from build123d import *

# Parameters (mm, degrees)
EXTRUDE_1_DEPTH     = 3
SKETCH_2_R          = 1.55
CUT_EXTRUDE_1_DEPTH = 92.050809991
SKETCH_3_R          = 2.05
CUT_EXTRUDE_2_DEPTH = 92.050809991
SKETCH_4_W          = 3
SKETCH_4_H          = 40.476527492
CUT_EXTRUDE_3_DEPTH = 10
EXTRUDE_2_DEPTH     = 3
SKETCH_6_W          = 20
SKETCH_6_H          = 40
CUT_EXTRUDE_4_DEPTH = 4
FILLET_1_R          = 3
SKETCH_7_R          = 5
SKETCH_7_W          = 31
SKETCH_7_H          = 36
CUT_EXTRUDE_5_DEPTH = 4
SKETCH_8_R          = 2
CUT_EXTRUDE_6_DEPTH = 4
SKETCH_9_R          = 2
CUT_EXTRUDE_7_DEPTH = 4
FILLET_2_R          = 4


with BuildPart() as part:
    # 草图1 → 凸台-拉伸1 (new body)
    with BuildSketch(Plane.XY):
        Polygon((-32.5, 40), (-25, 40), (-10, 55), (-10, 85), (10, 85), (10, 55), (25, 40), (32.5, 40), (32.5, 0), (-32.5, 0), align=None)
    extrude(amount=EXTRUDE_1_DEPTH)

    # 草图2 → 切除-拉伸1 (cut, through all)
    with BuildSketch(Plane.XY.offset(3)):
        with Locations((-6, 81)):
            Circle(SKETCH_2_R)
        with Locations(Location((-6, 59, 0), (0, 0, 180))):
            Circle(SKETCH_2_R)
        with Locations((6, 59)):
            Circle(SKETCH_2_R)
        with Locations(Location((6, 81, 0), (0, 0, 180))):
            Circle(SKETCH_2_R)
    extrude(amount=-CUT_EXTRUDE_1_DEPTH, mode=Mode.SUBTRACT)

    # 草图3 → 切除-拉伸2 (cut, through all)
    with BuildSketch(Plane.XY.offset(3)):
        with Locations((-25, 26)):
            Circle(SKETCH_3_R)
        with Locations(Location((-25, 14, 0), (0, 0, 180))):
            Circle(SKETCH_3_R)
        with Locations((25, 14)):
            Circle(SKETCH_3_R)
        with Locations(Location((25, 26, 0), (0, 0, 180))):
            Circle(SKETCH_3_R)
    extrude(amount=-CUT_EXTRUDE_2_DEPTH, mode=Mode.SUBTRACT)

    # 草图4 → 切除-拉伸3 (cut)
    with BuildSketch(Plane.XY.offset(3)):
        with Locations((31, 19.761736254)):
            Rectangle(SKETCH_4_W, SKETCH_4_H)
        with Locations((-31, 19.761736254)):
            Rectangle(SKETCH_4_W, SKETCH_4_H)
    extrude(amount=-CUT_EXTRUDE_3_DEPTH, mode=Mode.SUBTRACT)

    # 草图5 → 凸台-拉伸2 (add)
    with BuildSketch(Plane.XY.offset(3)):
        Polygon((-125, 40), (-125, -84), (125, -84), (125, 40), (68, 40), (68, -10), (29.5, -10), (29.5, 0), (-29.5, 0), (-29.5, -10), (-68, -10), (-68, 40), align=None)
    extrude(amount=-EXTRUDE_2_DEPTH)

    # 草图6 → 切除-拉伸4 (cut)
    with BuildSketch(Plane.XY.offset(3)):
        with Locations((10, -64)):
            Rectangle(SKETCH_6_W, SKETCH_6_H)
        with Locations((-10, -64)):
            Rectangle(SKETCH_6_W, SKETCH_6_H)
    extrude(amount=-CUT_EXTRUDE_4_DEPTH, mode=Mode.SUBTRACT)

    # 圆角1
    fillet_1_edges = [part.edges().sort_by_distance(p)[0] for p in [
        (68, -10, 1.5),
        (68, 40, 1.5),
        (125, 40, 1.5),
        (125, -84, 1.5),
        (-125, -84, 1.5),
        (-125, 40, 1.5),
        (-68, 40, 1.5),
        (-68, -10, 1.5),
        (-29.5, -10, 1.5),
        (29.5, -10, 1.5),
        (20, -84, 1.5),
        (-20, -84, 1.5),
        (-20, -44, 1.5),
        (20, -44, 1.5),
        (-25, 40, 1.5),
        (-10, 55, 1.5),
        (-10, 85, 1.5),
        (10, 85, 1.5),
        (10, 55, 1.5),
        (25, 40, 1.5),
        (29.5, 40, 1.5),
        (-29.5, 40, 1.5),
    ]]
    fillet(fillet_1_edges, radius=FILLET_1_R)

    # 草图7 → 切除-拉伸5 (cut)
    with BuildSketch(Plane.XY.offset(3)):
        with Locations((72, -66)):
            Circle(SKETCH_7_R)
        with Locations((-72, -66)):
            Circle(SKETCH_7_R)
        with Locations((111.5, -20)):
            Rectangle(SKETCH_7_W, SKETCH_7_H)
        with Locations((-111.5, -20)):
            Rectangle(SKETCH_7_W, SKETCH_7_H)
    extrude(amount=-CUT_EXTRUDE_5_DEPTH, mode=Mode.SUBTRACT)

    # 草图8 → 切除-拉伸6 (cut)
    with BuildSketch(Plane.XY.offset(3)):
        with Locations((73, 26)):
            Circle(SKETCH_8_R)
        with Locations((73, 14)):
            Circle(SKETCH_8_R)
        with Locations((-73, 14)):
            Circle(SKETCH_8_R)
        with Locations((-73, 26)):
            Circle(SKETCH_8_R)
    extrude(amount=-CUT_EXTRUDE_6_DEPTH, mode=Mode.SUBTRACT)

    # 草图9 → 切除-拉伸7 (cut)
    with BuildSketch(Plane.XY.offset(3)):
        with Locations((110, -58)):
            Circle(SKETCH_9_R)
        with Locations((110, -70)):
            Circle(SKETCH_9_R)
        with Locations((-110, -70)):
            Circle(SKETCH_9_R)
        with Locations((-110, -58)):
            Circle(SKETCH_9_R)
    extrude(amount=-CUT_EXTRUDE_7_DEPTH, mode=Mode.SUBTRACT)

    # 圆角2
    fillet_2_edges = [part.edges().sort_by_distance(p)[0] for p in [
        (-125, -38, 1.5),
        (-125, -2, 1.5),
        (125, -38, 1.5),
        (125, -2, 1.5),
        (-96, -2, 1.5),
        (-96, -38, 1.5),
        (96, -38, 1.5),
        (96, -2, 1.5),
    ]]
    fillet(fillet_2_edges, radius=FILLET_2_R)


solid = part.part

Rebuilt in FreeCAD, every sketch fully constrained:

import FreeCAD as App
import Part
import Sketcher

V = App.Vector
Q = App.Units.Quantity


def edges_at(feature, points):
    """Names of the edges that pass closest to the given points."""
    edges = feature.Shape.Edges
    near = lambda p: min(range(len(edges)), key=lambda i: edges[i].distToShape(Part.Vertex(*p))[0])
    return sorted({f"Edge{near(p) + 1}" for p in points})

doc = App.newDocument("Part")
body = doc.addObject("PartDesign::Body", "Body")

sketch1 = body.newObject("Sketcher::SketchObject", "Sketch")
sketch1.AttachmentSupport = (doc.getObject("XY_Plane"), [""])
sketch1.MapMode = "FlatFace"
sketch1.addGeometry([
    Part.LineSegment(V(-25, 40, 0), V(-32, 40, 0)),
    Part.LineSegment(V(-32, 40, 0), V(-32, 0, 0)),
    Part.LineSegment(V(-32, 0, 0), V(32, 0, 0)),
    Part.LineSegment(V(32, 0, 0), V(32, 40, 0)),
    Part.LineSegment(V(32, 40, 0), V(25, 40, 0)),
    Part.LineSegment(V(25, 40, 0), V(10, 55, 0)),
    Part.LineSegment(V(10, 55, 0), V(10, 85, 0)),
    Part.LineSegment(V(10, 85, 0), V(-10, 85, 0)),
    Part.LineSegment(V(-10, 85, 0), V(-10, 55, 0)),
    Part.LineSegment(V(-10, 55, 0), V(-25, 40, 0)),
], False)
sketch1.addConstraint([
    Sketcher.Constraint("Coincident", 0, 2, 1, 1),
    Sketcher.Constraint("Coincident", 1, 2, 2, 1),
    Sketcher.Constraint("Coincident", 2, 2, 3, 1),
    Sketcher.Constraint("Coincident", 3, 2, 4, 1),
    Sketcher.Constraint("Coincident", 4, 2, 5, 1),
    Sketcher.Constraint("Coincident", 5, 2, 6, 1),
    Sketcher.Constraint("Coincident", 6, 2, 7, 1),
    Sketcher.Constraint("Coincident", 7, 2, 8, 1),
    Sketcher.Constraint("Coincident", 8, 2, 9, 1),
    Sketcher.Constraint("Coincident", 9, 2, 0, 1),
    Sketcher.Constraint("Horizontal", 0),
    Sketcher.Constraint("Vertical", 1),
    Sketcher.Constraint("Horizontal", 2),
    Sketcher.Constraint("Vertical", 3),
    Sketcher.Constraint("Horizontal", 4),
    Sketcher.Constraint("Vertical", 6),
    Sketcher.Constraint("Horizontal", 7),
    Sketcher.Constraint("Vertical", 8),
    Sketcher.Constraint("Symmetric", 1, 2, 2, 2, -1, 1),
    Sketcher.Constraint("Symmetric", 5, 2, 8, 2, -2),
    Sketcher.Constraint("Symmetric", 4, 2, 9, 2, -2),
    Sketcher.Constraint("Perpendicular", 5, 9),
    Sketcher.Constraint("DistanceX", 2, 1, 2, 2, Q("65 mm")),
    Sketcher.Constraint("DistanceX", 7, 2, 7, 1, Q("20 mm")),
    Sketcher.Constraint("DistanceY", 1, 2, 1, 1, Q("40 mm")),
    Sketcher.Constraint("DistanceY", 6, 1, 6, 2, Q("30 mm")),
    Sketcher.Constraint("DistanceX", 0, 2, 0, 1, Q("7.5 mm")),
])
pad1 = body.newObject("PartDesign::Pad", "Pad")
pad1.Profile = sketch1
pad1.Length = 3

sketch2 = body.newObject("Sketcher::SketchObject", "Sketch001")
sketch2.AttachmentSupport = (doc.getObject("XY_Plane"), [""])
sketch2.MapMode = "FlatFace"
sketch2.AttachmentOffset = App.Placement(V(0, 0, 3), App.Rotation())
sketch2.addGeometry([
    Part.Circle(V(-6, 81, 0), V(0, 0, 1), 1.6),
    Part.Circle(V(-6, 59, 0), V(0, 0, 1), 1.6),
    Part.Circle(V(6, 59, 0), V(0, 0, 1), 1.6),
    Part.Circle(V(6, 81, 0), V(0, 0, 1), 1.6),
], False)
sketch2.addConstraint([
    Sketcher.Constraint("Equal", 0, 1),
    Sketcher.Constraint("Equal", 1, 2),
    Sketcher.Constraint("Equal", 2, 3),
    Sketcher.Constraint("Symmetric", 1, 3, 2, 3, -2),
    Sketcher.Constraint("Symmetric", 0, 3, 3, 3, -2),
    Sketcher.Constraint("Vertical", 0, 3, 1, 3),
    Sketcher.Constraint("Diameter", 0, Q("3.1 mm")),
    Sketcher.Constraint("DistanceX", 0, 3, -1, 1, Q("6 mm")),
    Sketcher.Constraint("DistanceY", -1, 1, 0, 3, Q("81 mm")),
    Sketcher.Constraint("DistanceY", -1, 1, 1, 3, Q("59 mm")),
])
pocket1 = body.newObject("PartDesign::Pocket", "Pocket")
pocket1.Profile = sketch2
pocket1.Type = "ThroughAll"

sketch3 = body.newObject("Sketcher::SketchObject", "Sketch002")
sketch3.AttachmentSupport = (doc.getObject("XY_Plane"), [""])
sketch3.MapMode = "FlatFace"
sketch3.AttachmentOffset = App.Placement(V(0, 0, 3), App.Rotation())
sketch3.addGeometry([
    Part.Circle(V(-25, 26, 0), V(0, 0, 1), 2),
    Part.Circle(V(-25, 14, 0), V(0, 0, 1), 2),
    Part.Circle(V(25, 14, 0), V(0, 0, 1), 2),
    Part.Circle(V(25, 26, 0), V(0, 0, 1), 2),
], False)
sketch3.addConstraint([
    Sketcher.Constraint("Equal", 0, 1),
    Sketcher.Constraint("Equal", 1, 2),
    Sketcher.Constraint("Equal", 2, 3),
    Sketcher.Constraint("Symmetric", 1, 3, 2, 3, -2),
    Sketcher.Constraint("Symmetric", 0, 3, 3, 3, -2),
    Sketcher.Constraint("Vertical", 0, 3, 1, 3),
    Sketcher.Constraint("Diameter", 0, Q("4.1 mm")),
    Sketcher.Constraint("DistanceX", 0, 3, -1, 1, Q("25 mm")),
    Sketcher.Constraint("DistanceY", -1, 1, 0, 3, Q("26 mm")),
    Sketcher.Constraint("DistanceY", -1, 1, 1, 3, Q("14 mm")),
])
pocket2 = body.newObject("PartDesign::Pocket", "Pocket001")
pocket2.Profile = sketch3
pocket2.Type = "ThroughAll"

sketch4 = body.newObject("Sketcher::SketchObject", "Sketch003")
sketch4.AttachmentSupport = (doc.getObject("XY_Plane"), [""])
sketch4.MapMode = "FlatFace"
sketch4.AttachmentOffset = App.Placement(V(0, 0, 3), App.Rotation())
sketch4.addGeometry([
    Part.LineSegment(V(29.5, 40, 0), V(29.5, -0.5, 0)),
    Part.LineSegment(V(29.5, -0.5, 0), V(32.5, -0.5, 0)),
    Part.LineSegment(V(32.5, -0.5, 0), V(32.5, 40, 0)),
    Part.LineSegment(V(32.5, 40, 0), V(29.5, 40, 0)),
    Part.LineSegment(V(-32.5, 40, 0), V(-32.5, -0.5, 0)),
    Part.LineSegment(V(-32.5, -0.5, 0), V(-29.5, -0.5, 0)),
    Part.LineSegment(V(-29.5, -0.5, 0), V(-29.5, 40, 0)),
    Part.LineSegment(V(-29.5, 40, 0), V(-32.5, 40, 0)),
], False)
sketch4.addConstraint([
    Sketcher.Constraint("Coincident", 0, 2, 1, 1),
    Sketcher.Constraint("Coincident", 1, 2, 2, 1),
    Sketcher.Constraint("Coincident", 2, 2, 3, 1),
    Sketcher.Constraint("Coincident", 3, 2, 0, 1),
    Sketcher.Constraint("Coincident", 4, 2, 5, 1),
    Sketcher.Constraint("Coincident", 5, 2, 6, 1),
    Sketcher.Constraint("Coincident", 6, 2, 7, 1),
    Sketcher.Constraint("Coincident", 7, 2, 4, 1),
    Sketcher.Constraint("Vertical", 0),
    Sketcher.Constraint("Horizontal", 1),
    Sketcher.Constraint("Vertical", 2),
    Sketcher.Constraint("Horizontal", 3),
    Sketcher.Constraint("Vertical", 4),
    Sketcher.Constraint("Horizontal", 5),
    Sketcher.Constraint("Vertical", 6),
    Sketcher.Constraint("Horizontal", 7),
    Sketcher.Constraint("Symmetric", 1, 2, 4, 2, -2),
    Sketcher.Constraint("Symmetric", 3, 2, 6, 2, -2),
    Sketcher.Constraint("DistanceX", 1, 1, 1, 2, Q("3 mm")),
    Sketcher.Constraint("DistanceY", -1, 1, 2, 2, Q("40 mm")),
    Sketcher.Constraint("DistanceX", 4, 2, 0, 2, Q("62 mm")),
    Sketcher.Constraint("DistanceY", 0, 2, 0, 1, Q("40.476527 mm")),
])
pocket3 = body.newObject("PartDesign::Pocket", "Pocket002")
pocket3.Profile = sketch4
pocket3.Length = 10

sketch5 = body.newObject("Sketcher::SketchObject", "Sketch004")
sketch5.AttachmentSupport = (doc.getObject("XY_Plane"), [""])
sketch5.MapMode = "FlatFace"
sketch5.AttachmentOffset = App.Placement(V(0, 0, 3), App.Rotation())
sketch5.addGeometry([
    Part.LineSegment(V(-125, 40, 0), V(-125, -84, 0)),
    Part.LineSegment(V(-125, -84, 0), V(125, -84, 0)),
    Part.LineSegment(V(125, -84, 0), V(125, 40, 0)),
    Part.LineSegment(V(125, 40, 0), V(68, 40, 0)),
    Part.LineSegment(V(68, 40, 0), V(68, -10, 0)),
    Part.LineSegment(V(68, -10, 0), V(30, -10, 0)),
    Part.LineSegment(V(30, -10, 0), V(30, 0, 0)),
    Part.LineSegment(V(30, 0, 0), V(-30, 0, 0)),
    Part.LineSegment(V(-30, 0, 0), V(-30, -10, 0)),
    Part.LineSegment(V(-30, -10, 0), V(-68, -10, 0)),
    Part.LineSegment(V(-68, -10, 0), V(-68, 40, 0)),
    Part.LineSegment(V(-68, 40, 0), V(-125, 40, 0)),
], False)
sketch5.addConstraint([
    Sketcher.Constraint("Coincident", 0, 2, 1, 1),
    Sketcher.Constraint("Coincident", 1, 2, 2, 1),
    Sketcher.Constraint("Coincident", 2, 2, 3, 1),
    Sketcher.Constraint("Coincident", 3, 2, 4, 1),
    Sketcher.Constraint("Coincident", 4, 2, 5, 1),
    Sketcher.Constraint("Coincident", 5, 2, 6, 1),
    Sketcher.Constraint("Coincident", 6, 2, 7, 1),
    Sketcher.Constraint("Coincident", 7, 2, 8, 1),
    Sketcher.Constraint("Coincident", 8, 2, 9, 1),
    Sketcher.Constraint("Coincident", 9, 2, 10, 1),
    Sketcher.Constraint("Coincident", 10, 2, 11, 1),
    Sketcher.Constraint("Coincident", 11, 2, 0, 1),
    Sketcher.Constraint("Vertical", 0),
    Sketcher.Constraint("Horizontal", 1),
    Sketcher.Constraint("Vertical", 2),
    Sketcher.Constraint("Horizontal", 3),
    Sketcher.Constraint("Vertical", 4),
    Sketcher.Constraint("Horizontal", 5),
    Sketcher.Constraint("Vertical", 6),
    Sketcher.Constraint("Horizontal", 7),
    Sketcher.Constraint("Vertical", 8),
    Sketcher.Constraint("Horizontal", 9),
    Sketcher.Constraint("Vertical", 10),
    Sketcher.Constraint("Horizontal", 11),
    Sketcher.Constraint("Symmetric", 6, 2, 7, 2, -1, 1),
    Sketcher.Constraint("Symmetric", 4, 2, 9, 2, -2),
    Sketcher.Constraint("Symmetric", 2, 2, 11, 2, -2),
    Sketcher.Constraint("DistanceX", 1, 1, 1, 2, Q("250 mm")),
    Sketcher.Constraint("DistanceX", 3, 2, 3, 1, Q("57 mm")),
    Sketcher.Constraint("DistanceX", 7, 2, 7, 1, Q("59 mm")),
    Sketcher.Constraint("DistanceY", 0, 2, 0, 1, Q("124 mm")),
    Sketcher.Constraint("DistanceY", 4, 2, 4, 1, Q("50 mm")),
    Sketcher.Constraint("DistanceY", 6, 1, 6, 2, Q("10 mm")),
])
pad2 = body.newObject("PartDesign::Pad", "Pad001")
pad2.Profile = sketch5
pad2.Length = 3
pad2.Reversed = True

sketch6 = body.newObject("Sketcher::SketchObject", "Sketch005")
sketch6.AttachmentSupport = (doc.getObject("XY_Plane"), [""])
sketch6.MapMode = "FlatFace"
sketch6.AttachmentOffset = App.Placement(V(0, 0, 3), App.Rotation())
sketch6.addGeometry([
    Part.LineSegment(V(20, -84, 0), V(20, -44, 0)),
    Part.LineSegment(V(20, -44, 0), V(-20, -44, 0)),
    Part.LineSegment(V(-20, -44, 0), V(-20, -84, 0)),
    Part.LineSegment(V(-20, -84, 0), V(20, -84, 0)),
], False)
sketch6.addConstraint([
    Sketcher.Constraint("Coincident", 0, 2, 1, 1),
    Sketcher.Constraint("Coincident", 1, 2, 2, 1),
    Sketcher.Constraint("Coincident", 2, 2, 3, 1),
    Sketcher.Constraint("Coincident", 3, 2, 0, 1),
    Sketcher.Constraint("Vertical", 0),
    Sketcher.Constraint("Horizontal", 1),
    Sketcher.Constraint("Vertical", 2),
    Sketcher.Constraint("Horizontal", 3),
    Sketcher.Constraint("Equal", 3, 0),
    Sketcher.Constraint("DistanceX", 1, 2, 1, 1, Q("40 mm")),
    Sketcher.Constraint("DistanceX", -1, 1, 0, 2, Q("20 mm")),
    Sketcher.Constraint("DistanceY", 0, 2, -1, 1, Q("44 mm")),
])
pocket4 = body.newObject("PartDesign::Pocket", "Pocket003")
pocket4.Profile = sketch6
pocket4.Length = 4
doc.recompute()

fillet = body.newObject("PartDesign::Fillet", "Fillet")
fillet.Base = (pocket4, edges_at(pocket4, [
    (68, -10, 1.5),
    (68, 40, 1.5),
    (125, 40, 1.5),
    (125, -84, 1.5),
    (-125, -84, 1.5),
    (-125, 40, 1.5),
    (-68, 40, 1.5),
    (-68, -10, 1.5),
    (-29.5, -10, 1.5),
    (29.5, -10, 1.5),
    (20, -84, 1.5),
    (-20, -84, 1.5),
    (-20, -44, 1.5),
    (20, -44, 1.5),
    (-25, 40, 1.5),
    (-10, 55, 1.5),
    (-10, 85, 1.5),
    (10, 85, 1.5),
    (10, 55, 1.5),
    (25, 40, 1.5),
    (29.5, 40, 1.5),
    (-29.5, 40, 1.5),
]))
fillet.Radius = 3

sketch7 = body.newObject("Sketcher::SketchObject", "Sketch006")
sketch7.AttachmentSupport = (doc.getObject("XY_Plane"), [""])
sketch7.MapMode = "FlatFace"
sketch7.AttachmentOffset = App.Placement(V(0, 0, 3), App.Rotation())
sketch7.addGeometry([
    Part.Circle(V(72, -66, 0), V(0, 0, 1), 5),
    Part.Circle(V(-72, -66, 0), V(0, 0, 1), 5),
    Part.LineSegment(V(96, -2, 0), V(96, -38, 0)),
    Part.LineSegment(V(96, -38, 0), V(127, -38, 0)),
    Part.LineSegment(V(127, -38, 0), V(127, -2, 0)),
    Part.LineSegment(V(127, -2, 0), V(96, -2, 0)),
    Part.LineSegment(V(-127, -2, 0), V(-127, -38, 0)),
    Part.LineSegment(V(-127, -38, 0), V(-96, -38, 0)),
    Part.LineSegment(V(-96, -38, 0), V(-96, -2, 0)),
    Part.LineSegment(V(-96, -2, 0), V(-127, -2, 0)),
], False)
sketch7.addConstraint([
    Sketcher.Constraint("Coincident", 2, 2, 3, 1),
    Sketcher.Constraint("Coincident", 3, 2, 4, 1),
    Sketcher.Constraint("Coincident", 4, 2, 5, 1),
    Sketcher.Constraint("Coincident", 5, 2, 2, 1),
    Sketcher.Constraint("Coincident", 6, 2, 7, 1),
    Sketcher.Constraint("Coincident", 7, 2, 8, 1),
    Sketcher.Constraint("Coincident", 8, 2, 9, 1),
    Sketcher.Constraint("Coincident", 9, 2, 6, 1),
    Sketcher.Constraint("Vertical", 2),
    Sketcher.Constraint("Horizontal", 3),
    Sketcher.Constraint("Vertical", 4),
    Sketcher.Constraint("Horizontal", 5),
    Sketcher.Constraint("Vertical", 6),
    Sketcher.Constraint("Horizontal", 7),
    Sketcher.Constraint("Vertical", 8),
    Sketcher.Constraint("Horizontal", 9),
    Sketcher.Constraint("Equal", 0, 1),
    Sketcher.Constraint("Symmetric", 0, 3, 1, 3, -2),
    Sketcher.Constraint("Symmetric", 3, 2, 6, 2, -2),
    Sketcher.Constraint("Symmetric", 5, 2, 8, 2, -2),
    Sketcher.Constraint("Diameter", 0, Q("10 mm")),
    Sketcher.Constraint("DistanceX", 3, 1, 3, 2, Q("31 mm")),
    Sketcher.Constraint("DistanceY", 2, 2, 2, 1, Q("36 mm")),
    Sketcher.Constraint("DistanceX", -1, 1, 0, 3, Q("72 mm")),
    Sketcher.Constraint("DistanceY", 0, 3, -1, 1, Q("66 mm")),
    Sketcher.Constraint("DistanceX", -1, 1, 2, 2, Q("96 mm")),
    Sketcher.Constraint("DistanceY", 2, 2, -1, 1, Q("38 mm")),
])
pocket5 = body.newObject("PartDesign::Pocket", "Pocket004")
pocket5.Profile = sketch7
pocket5.Length = 4

sketch8 = body.newObject("Sketcher::SketchObject", "Sketch007")
sketch8.AttachmentSupport = (doc.getObject("XY_Plane"), [""])
sketch8.MapMode = "FlatFace"
sketch8.AttachmentOffset = App.Placement(V(0, 0, 3), App.Rotation())
sketch8.addGeometry([
    Part.Circle(V(73, 26, 0), V(0, 0, 1), 2),
    Part.Circle(V(73, 14, 0), V(0, 0, 1), 2),
    Part.Circle(V(-73, 14, 0), V(0, 0, 1), 2),
    Part.Circle(V(-73, 26, 0), V(0, 0, 1), 2),
], False)
sketch8.addConstraint([
    Sketcher.Constraint("Equal", 0, 1),
    Sketcher.Constraint("Equal", 1, 2),
    Sketcher.Constraint("Equal", 2, 3),
    Sketcher.Constraint("Symmetric", 1, 3, 2, 3, -2),
    Sketcher.Constraint("Symmetric", 0, 3, 3, 3, -2),
    Sketcher.Constraint("Vertical", 0, 3, 1, 3),
    Sketcher.Constraint("Diameter", 0, Q("4 mm")),
    Sketcher.Constraint("DistanceX", -1, 1, 0, 3, Q("73 mm")),
    Sketcher.Constraint("DistanceY", -1, 1, 0, 3, Q("26 mm")),
    Sketcher.Constraint("DistanceY", -1, 1, 1, 3, Q("14 mm")),
])
pocket6 = body.newObject("PartDesign::Pocket", "Pocket005")
pocket6.Profile = sketch8
pocket6.Length = 4

sketch9 = body.newObject("Sketcher::SketchObject", "Sketch008")
sketch9.AttachmentSupport = (doc.getObject("XY_Plane"), [""])
sketch9.MapMode = "FlatFace"
sketch9.AttachmentOffset = App.Placement(V(0, 0, 3), App.Rotation())
sketch9.addGeometry([
    Part.Circle(V(110, -58, 0), V(0, 0, 1), 2),
    Part.Circle(V(110, -70, 0), V(0, 0, 1), 2),
    Part.Circle(V(-110, -70, 0), V(0, 0, 1), 2),
    Part.Circle(V(-110, -58, 0), V(0, 0, 1), 2),
], False)
sketch9.addConstraint([
    Sketcher.Constraint("Equal", 0, 1),
    Sketcher.Constraint("Equal", 1, 2),
    Sketcher.Constraint("Equal", 2, 3),
    Sketcher.Constraint("Symmetric", 1, 3, 2, 3, -2),
    Sketcher.Constraint("Symmetric", 0, 3, 3, 3, -2),
    Sketcher.Constraint("Vertical", 0, 3, 1, 3),
    Sketcher.Constraint("Diameter", 0, Q("4 mm")),
    Sketcher.Constraint("DistanceX", -1, 1, 0, 3, Q("110 mm")),
    Sketcher.Constraint("DistanceY", 0, 3, -1, 1, Q("58 mm")),
    Sketcher.Constraint("DistanceY", 1, 3, -1, 1, Q("70 mm")),
])
pocket7 = body.newObject("PartDesign::Pocket", "Pocket006")
pocket7.Profile = sketch9
pocket7.Length = 4
doc.recompute()

fillet2 = body.newObject("PartDesign::Fillet", "Fillet001")
fillet2.Base = (pocket7, edges_at(pocket7, [
    (-125, -38, 1.5),
    (-125, -2, 1.5),
    (125, -38, 1.5),
    (125, -2, 1.5),
    (-96, -2, 1.5),
    (-96, -38, 1.5),
    (96, -38, 1.5),
    (96, -2, 1.5),
]))
fillet2.Radius = 4

doc.recompute()
